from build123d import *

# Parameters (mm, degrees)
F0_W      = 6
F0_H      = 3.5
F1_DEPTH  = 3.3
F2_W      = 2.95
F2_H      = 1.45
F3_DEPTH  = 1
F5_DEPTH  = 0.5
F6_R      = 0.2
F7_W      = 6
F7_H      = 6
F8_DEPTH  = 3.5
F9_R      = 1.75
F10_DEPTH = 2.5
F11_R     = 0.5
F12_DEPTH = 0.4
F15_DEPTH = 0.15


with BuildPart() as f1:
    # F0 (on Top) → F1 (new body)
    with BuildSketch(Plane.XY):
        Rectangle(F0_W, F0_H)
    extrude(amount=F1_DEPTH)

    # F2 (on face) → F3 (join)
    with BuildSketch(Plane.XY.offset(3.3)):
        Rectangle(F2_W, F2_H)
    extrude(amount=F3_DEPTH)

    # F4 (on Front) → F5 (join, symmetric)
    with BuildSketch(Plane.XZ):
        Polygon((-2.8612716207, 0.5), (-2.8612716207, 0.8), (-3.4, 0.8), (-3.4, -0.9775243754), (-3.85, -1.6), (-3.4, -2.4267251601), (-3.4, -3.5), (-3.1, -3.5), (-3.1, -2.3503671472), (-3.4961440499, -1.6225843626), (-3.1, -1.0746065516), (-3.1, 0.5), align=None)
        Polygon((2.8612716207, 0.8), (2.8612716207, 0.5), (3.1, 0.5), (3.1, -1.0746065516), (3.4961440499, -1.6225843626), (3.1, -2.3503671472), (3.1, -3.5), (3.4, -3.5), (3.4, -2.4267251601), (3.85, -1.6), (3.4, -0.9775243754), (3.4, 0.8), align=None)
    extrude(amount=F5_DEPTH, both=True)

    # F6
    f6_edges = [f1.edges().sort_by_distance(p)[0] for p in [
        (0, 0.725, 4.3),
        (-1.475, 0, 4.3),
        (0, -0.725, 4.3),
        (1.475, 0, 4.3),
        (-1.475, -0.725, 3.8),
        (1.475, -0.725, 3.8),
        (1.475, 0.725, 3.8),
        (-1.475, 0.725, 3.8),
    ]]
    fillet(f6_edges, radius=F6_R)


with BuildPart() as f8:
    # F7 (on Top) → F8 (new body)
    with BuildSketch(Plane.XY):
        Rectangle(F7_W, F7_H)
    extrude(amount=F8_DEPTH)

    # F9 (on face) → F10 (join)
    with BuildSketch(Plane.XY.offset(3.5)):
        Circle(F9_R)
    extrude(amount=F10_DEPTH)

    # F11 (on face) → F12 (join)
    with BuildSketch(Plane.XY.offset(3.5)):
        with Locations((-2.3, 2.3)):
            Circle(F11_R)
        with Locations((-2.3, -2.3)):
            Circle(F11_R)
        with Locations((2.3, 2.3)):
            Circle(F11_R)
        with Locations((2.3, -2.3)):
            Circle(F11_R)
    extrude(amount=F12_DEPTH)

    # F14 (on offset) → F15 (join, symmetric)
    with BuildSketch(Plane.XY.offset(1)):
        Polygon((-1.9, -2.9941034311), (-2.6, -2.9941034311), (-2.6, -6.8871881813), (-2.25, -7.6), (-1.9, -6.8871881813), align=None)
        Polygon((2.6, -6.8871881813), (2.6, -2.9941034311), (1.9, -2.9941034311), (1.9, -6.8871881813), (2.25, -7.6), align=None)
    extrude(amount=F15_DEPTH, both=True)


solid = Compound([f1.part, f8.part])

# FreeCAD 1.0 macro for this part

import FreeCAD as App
import Part
import Sketcher
Q = App.Units.Quantity


def edges_at(feature, points):
    """Names of the edges that pass closest to the given points."""
    edges = feature.Shape.Edges
    near = lambda p: min(range(len(edges)), key=lambda i: edges[i].distToShape(Part.Vertex(*p))[0])
    return sorted({f"Edge{near(p) + 1}" for p in points})


def add_polygon(sketch, points):
    """Adds a closed chain of lines whose ends are joined by coincident constraints."""
    first, n = sketch.GeometryCount, len(points)
    for a, b in zip(points, points[1:] + points[:1]):
        sketch.addGeometry(Part.LineSegment(App.Vector(*a, 0), App.Vector(*b, 0)), False)
    for i in range(n):
        sketch.addConstraint(Sketcher.Constraint("Coincident", first + i, 2, first + (i + 1) % n, 1))

doc = App.newDocument("Part")
params = doc.addObject("Spreadsheet::Sheet", "Params")
for row, (alias, value) in enumerate([
    ("sketch1_width", "6 mm"),
    ("sketch1_height", "3.5 mm"),
    ("pad1_length", "3.3 mm"),
    ("sketch2_width", "2.95 mm"),
    ("sketch2_height", "1.45 mm"),
    ("pad2_length", "1 mm"),
    ("sketch3_width", "0.3 mm"),
    ("pad3_length", "1 mm"),
    ("fillet_radius", "0.2 mm"),
    ("sketch4_width", "6 mm"),
    ("pad4_length", "3.5 mm"),
    ("sketch5_diameter", "3.5 mm"),
    ("pad5_length", "2.5 mm"),
    ("sketch6_diameter", "1 mm"),
    ("pad6_length", "0.4 mm"),
    ("sketch7_width", "0.7 mm"),
    ("pad7_length", "0.3 mm"),
], start=1):
    params.set(f"A{row}", alias)
    params.set(f"B{row}", "=" + value)
    params.setAlias(f"B{row}", alias)

body = doc.addObject("PartDesign::Body", "Body")

# Sketch on XY plane
sketch1 = body.newObject("Sketcher::SketchObject", "Sketch")
sketch1.AttachmentSupport = (doc.getObject("XY_Plane"), [""])
sketch1.MapMode = "FlatFace"
add_polygon(sketch1, [(-3, 1.8), (-3, -1.8), (3, -1.8), (3, 1.8)])  # lines 0-3
sketch1.addConstraint(Sketcher.Constraint("Vertical", 0))
sketch1.addConstraint(Sketcher.Constraint("Horizontal", 1))
sketch1.addConstraint(Sketcher.Constraint("Vertical", 2))
sketch1.addConstraint(Sketcher.Constraint("Horizontal", 3))
sketch1.addConstraint(Sketcher.Constraint("Symmetric", 0, 2, 2, 2, -1, 1))
sketch1.addConstraint(Sketcher.Constraint("DistanceX", 1, 1, 1, 2, Q("6 mm")))
sketch1.addConstraint(Sketcher.Constraint("DistanceY", 0, 2, 0, 1, Q("3.5 mm")))
sketch1.setExpression("Constraints[9]", "Params.sketch1_width")
sketch1.setExpression("Constraints[10]", "Params.sketch1_height")
pad1 = body.newObject("PartDesign::Pad", "Pad")
pad1.Profile = sketch1
pad1.setExpression("Length", "Params.pad1_length")

# Sketch on XY plane
sketch2 = body.newObject("Sketcher::SketchObject", "Sketch001")
sketch2.AttachmentSupport = (doc.getObject("XY_Plane"), [""])
sketch2.MapMode = "FlatFace"
sketch2.AttachmentOffset = App.Placement(App.Vector(0, 0, 3.3), App.Rotation())
add_polygon(sketch2, [(-1.5, 0.7), (-1.5, -0.7), (1.5, -0.7), (1.5, 0.7)])  # lines 0-3
sketch2.addConstraint(Sketcher.Constraint("Vertical", 0))
sketch2.addConstraint(Sketcher.Constraint("Horizontal", 1))
sketch2.addConstraint(Sketcher.Constraint("Vertical", 2))
sketch2.addConstraint(Sketcher.Constraint("Horizontal", 3))
sketch2.addConstraint(Sketcher.Constraint("Symmetric", 0, 2, 2, 2, -1, 1))
sketch2.addConstraint(Sketcher.Constraint("DistanceX", 1, 1, 1, 2, Q("2.95 mm")))
sketch2.addConstraint(Sketcher.Constraint("DistanceY", 0, 2, 0, 1, Q("1.45 mm")))
sketch2.setExpression("Constraints[9]", "Params.sketch2_width")
sketch2.setExpression("Constraints[10]", "Params.sketch2_height")
pad2 = body.newObject("PartDesign::Pad", "Pad001")
pad2.Profile = sketch2
pad2.setExpression("Length", "Params.pad2_length")

# Sketch on XZ plane
sketch3 = body.newObject("Sketcher::SketchObject", "Sketch002")
sketch3.AttachmentSupport = (doc.getObject("XZ_Plane"), [""])
sketch3.MapMode = "FlatFace"
add_polygon(sketch3, [(-2.86, 0.5), (-2.86, 0.8), (-3.4, 0.8), (-3.4, -0.98), (-3.85, -1.6), (-3.4, -2.43), (-3.4, -3.5), (-3.1, -3.5), (-3.1, -2.35), (-3.5, -1.62), (-3.1, -1.07), (-3.1, 0.5)])  # lines 0-11
add_polygon(sketch3, [(2.86, 0.8), (2.86, 0.5), (3.1, 0.5), (3.1, -1.07), (3.5, -1.62), (3.1, -2.35), (3.1, -3.5), (3.4, -3.5), (3.4, -2.43), (3.85, -1.6), (3.4, -0.98), (3.4, 0.8)])  # lines 12-23
sketch3.addConstraint(Sketcher.Constraint("Vertical", 0))
sketch3.addConstraint(Sketcher.Constraint("Horizontal", 1))
sketch3.addConstraint(Sketcher.Constraint("Vertical", 2))
sketch3.addConstraint(Sketcher.Constraint("Vertical", 5))
sketch3.addConstraint(Sketcher.Constraint("Horizontal", 6))
sketch3.addConstraint(Sketcher.Constraint("Vertical", 7))
sketch3.addConstraint(Sketcher.Constraint("Vertical", 10))
sketch3.addConstraint(Sketcher.Constraint("Horizontal", 11))
sketch3.addConstraint(Sketcher.Constraint("Vertical", 12))
sketch3.addConstraint(Sketcher.Constraint("Horizontal", 13))
sketch3.addConstraint(Sketcher.Constraint("Vertical", 14))
sketch3.addConstraint(Sketcher.Constraint("Vertical", 17))
sketch3.addConstraint(Sketcher.Constraint("Horizontal", 18))
sketch3.addConstraint(Sketcher.Constraint("Vertical", 19))
sketch3.addConstraint(Sketcher.Constraint("Vertical", 22))
sketch3.addConstraint(Sketcher.Constraint("Horizontal", 23))
sketch3.addConstraint(Sketcher.Constraint("Symmetric", 11, 2, 12, 2, -2))
sketch3.addConstraint(Sketcher.Constraint("Symmetric", 9, 2, 14, 2, -2))
sketch3.addConstraint(Sketcher.Constraint("Symmetric", 8, 2, 15, 2, -2))
sketch3.addConstraint(Sketcher.Constraint("Symmetric", 7, 2, 16, 2, -2))
sketch3.addConstraint(Sketcher.Constraint("Symmetric", 5, 2, 18, 2, -2))
sketch3.addConstraint(Sketcher.Constraint("Symmetric", 3, 2, 20, 2, -2))
sketch3.addConstraint(Sketcher.Constraint("Symmetric", 2, 2, 21, 2, -2))
sketch3.addConstraint(Sketcher.Constraint("Parallel", 4, 8))
sketch3.addConstraint(Sketcher.Constraint("Parallel", 3, 9))
sketch3.addConstraint(Sketcher.Constraint("Parallel", 16, 20))
sketch3.addConstraint(Sketcher.Constraint("Horizontal", 1, 2, 22, 2))
sketch3.addConstraint(Sketcher.Constraint("Vertical", 2, 2, 4, 2))
sketch3.addConstraint(Sketcher.Constraint("Vertical", 7, 2, 9, 2))
sketch3.addConstraint(Sketcher.Constraint("Equal", 18, 0))
sketch3.addConstraint(Sketcher.Constraint("DistanceX", 6, 1, 6, 2, Q("0.3 mm")))
sketch3.addConstraint(Sketcher.Constraint("DistanceY", 17, 2, 13, 2, Q("4 mm")))
sketch3.addConstraint(Sketcher.Constraint("DistanceY", -1, 1, 0, 2, Q("0.8 mm")))
sketch3.addConstraint(Sketcher.Constraint("DistanceX", 1, 2, -1, 1, Q("3.4 mm")))
sketch3.addConstraint(Sketcher.Constraint("DistanceY", 3, 2, -1, 1, Q("1.6 mm")))
sketch3.addConstraint(Sketcher.Constraint("DistanceX", 3, 2, -1, 1, Q("3.85 mm")))
sketch3.addConstraint(Sketcher.Constraint("Distance", 3, Q("0.768099 mm")))
sketch3.addConstraint(Sketcher.Constraint("DistanceX", 1, 2, 1, 1, Q("0.538728 mm")))
sketch3.addConstraint(Sketcher.Constraint("DistanceY", 4, 2, 2, 2, Q("1.449201 mm")))
sketch3.addConstraint(Sketcher.Constraint("DistanceY", 7, 1, 7, 2, Q("1.149633 mm")))
sketch3.addConstraint(Sketcher.Constraint("DistanceY", 10, 1, 10, 2, Q("1.574607 mm")))
sketch3.setExpression("Constraints[54]", "Params.sketch3_width")
pad3 = body.newObject("PartDesign::Pad", "Pad002")
pad3.Profile = sketch3
pad3.setExpression("Length", "Params.pad3_length")
pad3.Midplane = True
doc.recompute()

fillet = body.newObject("PartDesign::Fillet", "Fillet")
fillet.Base = (pad3, edges_at(pad3, [
    (0, 0.725, 4.3),
    (-1.475, 0, 4.3),
    (0, -0.725, 4.3),
    (1.475, 0, 4.3),
    (-1.475, -0.725, 3.8),
    (1.475, -0.725, 3.8),
    (1.475, 0.725, 3.8),
    (-1.475, 0.725, 3.8),
]))
fillet.setExpression("Radius", "Params.fillet_radius")
body2 = doc.addObject("PartDesign::Body", "Body001")

# Sketch on XY plane
sketch4 = body2.newObject("Sketcher::SketchObject", "Sketch003")
sketch4.AttachmentSupport = (doc.getObject("XY_Plane001"), [""])
sketch4.MapMode = "FlatFace"
add_polygon(sketch4, [(-3, 3), (-3, -3), (3, -3), (3, 3)])  # lines 0-3
sketch4.addConstraint(Sketcher.Constraint("Vertical", 0))
sketch4.addConstraint(Sketcher.Constraint("Horizontal", 1))
sketch4.addConstraint(Sketcher.Constraint("Vertical", 2))
sketch4.addConstraint(Sketcher.Constraint("Horizontal", 3))
sketch4.addConstraint(Sketcher.Constraint("Symmetric", 0, 2, 2, 2, -1, 1))
sketch4.addConstraint(Sketcher.Constraint("Equal", 3, 0))
sketch4.addConstraint(Sketcher.Constraint("DistanceX", 1, 1, 1, 2, Q("6 mm")))
sketch4.setExpression("Constraints[10]", "Params.sketch4_width")
pad4 = body2.newObject("PartDesign::Pad", "Pad003")
pad4.Profile = sketch4
pad4.setExpression("Length", "Params.pad4_length")

# Sketch on XY plane
sketch5 = body2.newObject("Sketcher::SketchObject", "Sketch004")
sketch5.AttachmentSupport = (doc.getObject("XY_Plane001"), [""])
sketch5.MapMode = "FlatFace"
sketch5.AttachmentOffset = App.Placement(App.Vector(0, 0, 3.5), App.Rotation())
sketch5.addGeometry(Part.Circle(App.Vector(0, 0, 0), App.Vector(0, 0, 1), 1.8), False)
sketch5.addConstraint(Sketcher.Constraint("Coincident", 0, 3, -1, 1))
sketch5.addConstraint(Sketcher.Constraint("Diameter", 0, Q("3.5 mm")))
sketch5.setExpression("Constraints[1]", "Params.sketch5_diameter")
pad5 = body2.newObject("PartDesign::Pad", "Pad004")
pad5.Profile = sketch5
pad5.setExpression("Length", "Params.pad5_length")

# Sketch on XY plane
sketch6 = body2.newObject("Sketcher::SketchObject", "Sketch005")
sketch6.AttachmentSupport = (doc.getObject("XY_Plane001"), [""])
sketch6.MapMode = "FlatFace"
sketch6.AttachmentOffset = App.Placement(App.Vector(0, 0, 3.5), App.Rotation())
sketch6.addGeometry(Part.Circle(App.Vector(-2.3, 2.3, 0), App.Vector(0, 0, 1), 0.5), False)
sketch6.addGeometry(Part.Circle(App.Vector(-2.3, -2.3, 0), App.Vector(0, 0, 1), 0.5), False)
sketch6.addGeometry(Part.Circle(App.Vector(2.3, 2.3, 0), App.Vector(0, 0, 1), 0.5), False)
sketch6.addGeometry(Part.Circle(App.Vector(2.3, -2.3, 0), App.Vector(0, 0, 1), 0.5), False)
sketch6.addConstraint(Sketcher.Constraint("Equal", 0, 1))
sketch6.addConstraint(Sketcher.Constraint("Equal", 1, 2))
sketch6.addConstraint(Sketcher.Constraint("Equal", 2, 3))
sketch6.addConstraint(Sketcher.Constraint("Symmetric", 1, 3, 2, 3, -1, 1))
sketch6.addConstraint(Sketcher.Constraint("Symmetric", 0, 3, 3, 3, -1, 1))
sketch6.addConstraint(Sketcher.Constraint("Symmetric", 0, 3, 2, 3, -2))
sketch6.addConstraint(Sketcher.Constraint("Diameter", 0, Q("1 mm")))
sketch6.addConstraint(Sketcher.Constraint("DistanceX", 0, 3, -1, 1, Q("2.3 mm")))
sketch6.addConstraint(Sketcher.Constraint("DistanceY", -1, 1, 0, 3, Q("2.3 mm")))
sketch6.setExpression("Constraints[6]", "Params.sketch6_diameter")
pad6 = body2.newObject("PartDesign::Pad", "Pad005")
pad6.Profile = sketch6
pad6.setExpression("Length", "Params.pad6_length")

# Sketch on XY plane
sketch7 = body2.newObject("Sketcher::SketchObject", "Sketch006")
sketch7.AttachmentSupport = (doc.getObject("XY_Plane001"), [""])
sketch7.MapMode = "FlatFace"
sketch7.AttachmentOffset = App.Placement(App.Vector(0, 0, 1), App.Rotation())
add_polygon(sketch7, [(-1.9, -3), (-2.6, -3), (-2.6, -6.9), (-2.2, -7.6), (-1.9, -6.9)])  # lines 0-4
add_polygon(sketch7, [(2.6, -6.9), (2.6, -3), (1.9, -3), (1.9, -6.9), (2.2, -7.6)])  # lines 5-9
sketch7.addConstraint(Sketcher.Constraint("Horizontal", 0))
sketch7.addConstraint(Sketcher.Constraint("Vertical", 1))
sketch7.addConstraint(Sketcher.Constraint("Vertical", 4))
sketch7.addConstraint(Sketcher.Constraint("Vertical", 5))
sketch7.addConstraint(Sketcher.Constraint("Horizontal", 6))
sketch7.addConstraint(Sketcher.Constraint("Vertical", 7))
sketch7.addConstraint(Sketcher.Constraint("Symmetric", 0, 2, 5, 2, -2))
sketch7.addConstraint(Sketcher.Constraint("Symmetric", 3, 2, 7, 2, -2))
sketch7.addConstraint(Sketcher.Constraint("Symmetric", 2, 2, 8, 2, -2))
sketch7.addConstraint(Sketcher.Constraint("Parallel", 2, 8))
sketch7.addConstraint(Sketcher.Constraint("Parallel", 3, 9))
sketch7.addConstraint(Sketcher.Constraint("Horizontal", 1, 2, 3, 2))
sketch7.addConstraint(Sketcher.Constraint("DistanceX", 0, 2, 0, 1, Q("0.7 mm")))
sketch7.addConstraint(Sketcher.Constraint("DistanceX", 0, 2, -1, 1, Q("2.6 mm")))
sketch7.addConstraint(Sketcher.Constraint("DistanceY", 2, 2, -1, 1, Q("7.6 mm")))
sketch7.addConstraint(Sketcher.Constraint("DistanceY", 1, 2, 1, 1, Q("3.893085 mm")))
sketch7.addConstraint(Sketcher.Constraint("DistanceY", 1, 2, -1, 1, Q("6.887188 mm")))
sketch7.setExpression("Constraints[22]", "Params.sketch7_width")
pad7 = body2.newObject("PartDesign::Pad", "Pad006")
pad7.Profile = sketch7
pad7.setExpression("Length", "Params.pad7_length")
pad7.Midplane = True

doc.recompute()
